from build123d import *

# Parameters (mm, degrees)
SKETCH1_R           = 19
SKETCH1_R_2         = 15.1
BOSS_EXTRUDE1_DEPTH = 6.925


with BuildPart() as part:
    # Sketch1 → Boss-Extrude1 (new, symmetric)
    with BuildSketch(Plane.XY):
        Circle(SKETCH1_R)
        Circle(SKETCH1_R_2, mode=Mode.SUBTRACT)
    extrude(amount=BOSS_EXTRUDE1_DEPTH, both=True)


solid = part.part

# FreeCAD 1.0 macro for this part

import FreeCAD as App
import Part
import Sketcher

doc = App.newDocument("Part")
body = doc.addObject("PartDesign::Body", "Body")

# Sketch on XY plane
sketch1 = body.newObject("Sketcher::SketchObject", "Sketch")
sketch1.AttachmentSupport = (doc.getObject("XY_Plane"), [""])
sketch1.MapMode = "FlatFace"
sketch1.addGeometry([
    Part.Circle(App.Vector(0, 0, 0), App.Vector(0, 0, 1), 19),
    Part.Circle(App.Vector(0, 0, 0), App.Vector(0, 0, 1), 15.1),
], False)
sketch1.addConstraint([
    Sketcher.Constraint("Coincident", 0, 3, -1, 1),
    Sketcher.Constraint("Coincident", 1, 3, -1, 1),
    Sketcher.Constraint("Diameter", 0, 38.0),
    Sketcher.Constraint("Diameter", 1, 30.2),
])
pad1 = body.newObject("PartDesign::Pad", "Pad")
pad1.Profile = sketch1
pad1.Length = 13.85
pad1.Midplane = True

doc.recompute()
